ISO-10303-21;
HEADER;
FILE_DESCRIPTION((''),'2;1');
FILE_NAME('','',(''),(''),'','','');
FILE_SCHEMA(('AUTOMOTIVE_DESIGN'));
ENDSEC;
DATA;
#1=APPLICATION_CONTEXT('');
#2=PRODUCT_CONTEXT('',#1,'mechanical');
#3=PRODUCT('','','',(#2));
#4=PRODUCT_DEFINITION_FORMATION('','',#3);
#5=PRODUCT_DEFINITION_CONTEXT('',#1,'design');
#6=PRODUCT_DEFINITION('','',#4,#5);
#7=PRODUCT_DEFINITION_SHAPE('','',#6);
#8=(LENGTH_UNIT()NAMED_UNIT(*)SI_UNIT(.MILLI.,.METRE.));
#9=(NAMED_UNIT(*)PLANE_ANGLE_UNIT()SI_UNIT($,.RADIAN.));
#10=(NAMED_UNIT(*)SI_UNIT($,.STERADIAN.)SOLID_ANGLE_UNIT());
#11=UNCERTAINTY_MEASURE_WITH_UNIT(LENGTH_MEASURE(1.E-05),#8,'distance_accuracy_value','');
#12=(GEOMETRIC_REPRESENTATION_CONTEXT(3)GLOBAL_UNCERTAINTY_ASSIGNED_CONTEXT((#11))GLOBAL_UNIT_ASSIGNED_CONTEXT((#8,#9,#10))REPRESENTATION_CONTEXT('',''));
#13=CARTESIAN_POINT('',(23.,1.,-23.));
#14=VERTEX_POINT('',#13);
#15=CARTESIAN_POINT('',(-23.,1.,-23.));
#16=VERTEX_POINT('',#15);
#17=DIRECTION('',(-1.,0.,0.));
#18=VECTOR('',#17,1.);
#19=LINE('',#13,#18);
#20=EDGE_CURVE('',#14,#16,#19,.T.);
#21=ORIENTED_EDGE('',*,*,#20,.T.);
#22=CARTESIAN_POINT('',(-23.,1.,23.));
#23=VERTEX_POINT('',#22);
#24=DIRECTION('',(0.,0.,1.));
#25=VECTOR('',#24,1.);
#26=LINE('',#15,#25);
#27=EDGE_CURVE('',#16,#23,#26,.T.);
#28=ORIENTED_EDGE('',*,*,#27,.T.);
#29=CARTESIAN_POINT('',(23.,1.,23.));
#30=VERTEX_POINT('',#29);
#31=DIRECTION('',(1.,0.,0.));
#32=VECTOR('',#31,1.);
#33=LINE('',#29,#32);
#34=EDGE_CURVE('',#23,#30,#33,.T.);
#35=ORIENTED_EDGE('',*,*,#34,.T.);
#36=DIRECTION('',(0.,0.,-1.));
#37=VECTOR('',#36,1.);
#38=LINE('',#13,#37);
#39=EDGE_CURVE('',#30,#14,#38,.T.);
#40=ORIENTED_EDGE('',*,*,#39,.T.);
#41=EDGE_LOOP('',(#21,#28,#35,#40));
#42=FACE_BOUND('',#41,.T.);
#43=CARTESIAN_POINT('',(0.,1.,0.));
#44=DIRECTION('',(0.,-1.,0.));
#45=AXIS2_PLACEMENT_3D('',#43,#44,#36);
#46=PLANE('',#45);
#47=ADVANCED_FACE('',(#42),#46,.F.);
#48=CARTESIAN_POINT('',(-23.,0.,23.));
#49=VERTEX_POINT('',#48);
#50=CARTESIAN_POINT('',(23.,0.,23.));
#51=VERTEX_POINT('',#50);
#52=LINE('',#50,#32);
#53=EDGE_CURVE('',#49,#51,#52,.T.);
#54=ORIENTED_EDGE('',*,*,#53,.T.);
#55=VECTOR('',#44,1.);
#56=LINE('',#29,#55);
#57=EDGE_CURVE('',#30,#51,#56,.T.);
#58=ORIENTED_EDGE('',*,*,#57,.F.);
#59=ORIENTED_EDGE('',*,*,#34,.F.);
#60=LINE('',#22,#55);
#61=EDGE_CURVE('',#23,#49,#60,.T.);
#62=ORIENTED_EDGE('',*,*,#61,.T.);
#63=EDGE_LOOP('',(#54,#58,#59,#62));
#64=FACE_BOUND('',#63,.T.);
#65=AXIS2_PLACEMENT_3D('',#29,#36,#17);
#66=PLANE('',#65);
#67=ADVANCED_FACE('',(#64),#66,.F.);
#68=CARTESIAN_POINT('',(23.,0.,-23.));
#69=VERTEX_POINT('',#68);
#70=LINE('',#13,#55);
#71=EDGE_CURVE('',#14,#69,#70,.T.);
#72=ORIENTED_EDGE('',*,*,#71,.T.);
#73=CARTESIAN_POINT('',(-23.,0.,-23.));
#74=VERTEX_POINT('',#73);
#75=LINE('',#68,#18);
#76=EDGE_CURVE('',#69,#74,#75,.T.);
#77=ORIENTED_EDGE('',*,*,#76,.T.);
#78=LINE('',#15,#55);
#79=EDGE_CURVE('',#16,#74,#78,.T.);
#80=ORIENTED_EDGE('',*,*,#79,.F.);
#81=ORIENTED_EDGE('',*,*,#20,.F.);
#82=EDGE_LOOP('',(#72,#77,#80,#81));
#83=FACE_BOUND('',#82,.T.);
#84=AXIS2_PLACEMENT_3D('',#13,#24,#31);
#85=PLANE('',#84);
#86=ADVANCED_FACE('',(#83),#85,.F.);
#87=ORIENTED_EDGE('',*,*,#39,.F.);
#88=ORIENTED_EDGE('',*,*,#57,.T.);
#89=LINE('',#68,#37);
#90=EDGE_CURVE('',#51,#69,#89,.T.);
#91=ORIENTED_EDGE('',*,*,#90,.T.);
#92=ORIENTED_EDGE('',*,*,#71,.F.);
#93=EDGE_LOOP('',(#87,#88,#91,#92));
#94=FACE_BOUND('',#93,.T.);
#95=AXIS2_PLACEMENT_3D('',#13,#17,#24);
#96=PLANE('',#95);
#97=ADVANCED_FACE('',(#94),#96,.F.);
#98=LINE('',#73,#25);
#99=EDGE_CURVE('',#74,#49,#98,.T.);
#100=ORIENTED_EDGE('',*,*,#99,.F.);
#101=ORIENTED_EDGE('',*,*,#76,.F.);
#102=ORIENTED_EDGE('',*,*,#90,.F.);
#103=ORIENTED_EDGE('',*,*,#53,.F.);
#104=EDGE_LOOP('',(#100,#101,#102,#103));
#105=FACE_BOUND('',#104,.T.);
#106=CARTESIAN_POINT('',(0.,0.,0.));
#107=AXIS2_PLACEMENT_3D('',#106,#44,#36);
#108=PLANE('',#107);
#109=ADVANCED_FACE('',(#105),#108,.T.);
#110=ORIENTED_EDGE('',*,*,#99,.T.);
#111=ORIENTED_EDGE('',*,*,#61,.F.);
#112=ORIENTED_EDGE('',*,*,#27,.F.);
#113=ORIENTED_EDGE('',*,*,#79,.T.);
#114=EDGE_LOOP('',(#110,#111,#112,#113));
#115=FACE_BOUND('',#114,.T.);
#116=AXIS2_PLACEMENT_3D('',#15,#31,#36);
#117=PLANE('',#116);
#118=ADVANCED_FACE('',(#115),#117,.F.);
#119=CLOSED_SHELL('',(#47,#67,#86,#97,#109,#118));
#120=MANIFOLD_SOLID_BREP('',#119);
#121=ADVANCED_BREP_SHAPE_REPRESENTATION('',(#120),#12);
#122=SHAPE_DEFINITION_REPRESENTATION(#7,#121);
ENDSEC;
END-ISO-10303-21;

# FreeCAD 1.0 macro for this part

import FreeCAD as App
import Part
import Sketcher


def add_polygon(sketch, points):
    """Adds a closed chain of lines whose ends are joined by coincident constraints."""
    first, n = sketch.GeometryCount, len(points)
    for a, b in zip(points, points[1:] + points[:1]):
        sketch.addGeometry(Part.LineSegment(App.Vector(*a, 0), App.Vector(*b, 0)), False)
    for i in range(n):
        sketch.addConstraint(Sketcher.Constraint("Coincident", first + i, 2, first + (i + 1) % n, 1))

doc = App.newDocument("Part")
body = doc.addObject("PartDesign::Body", "Body")

# Sketch on XZ plane
sketch1 = doc.addObject("Sketcher::SketchObject", "Sketch")
body.addObject(sketch1)
sketch1.AttachmentSupport = (doc.XZ_Plane, [""])
sketch1.MapMode = "FlatFace"
add_polygon(sketch1, [(-23, -23), (-23, 23), (23, 23), (23, -23)])  # lines 0-3
sketch1.addConstraint([
    Sketcher.Constraint("Vertical", 0),
    Sketcher.Constraint("Horizontal", 1),
    Sketcher.Constraint("Vertical", 2),
    Sketcher.Constraint("Horizontal", 3),
    Sketcher.Constraint("Symmetric", 0, 2, 2, 2, -1, 1),
    Sketcher.Constraint("Equal", 3, 0),
    Sketcher.Constraint("DistanceX", 1, 1, 1, 2, 46.0),
])
pad1 = doc.addObject("PartDesign::Pad", "Pad")
body.addObject(pad1)
pad1.Profile = sketch1
pad1.Length = 1
pad1.Reversed = True

doc.recompute()
